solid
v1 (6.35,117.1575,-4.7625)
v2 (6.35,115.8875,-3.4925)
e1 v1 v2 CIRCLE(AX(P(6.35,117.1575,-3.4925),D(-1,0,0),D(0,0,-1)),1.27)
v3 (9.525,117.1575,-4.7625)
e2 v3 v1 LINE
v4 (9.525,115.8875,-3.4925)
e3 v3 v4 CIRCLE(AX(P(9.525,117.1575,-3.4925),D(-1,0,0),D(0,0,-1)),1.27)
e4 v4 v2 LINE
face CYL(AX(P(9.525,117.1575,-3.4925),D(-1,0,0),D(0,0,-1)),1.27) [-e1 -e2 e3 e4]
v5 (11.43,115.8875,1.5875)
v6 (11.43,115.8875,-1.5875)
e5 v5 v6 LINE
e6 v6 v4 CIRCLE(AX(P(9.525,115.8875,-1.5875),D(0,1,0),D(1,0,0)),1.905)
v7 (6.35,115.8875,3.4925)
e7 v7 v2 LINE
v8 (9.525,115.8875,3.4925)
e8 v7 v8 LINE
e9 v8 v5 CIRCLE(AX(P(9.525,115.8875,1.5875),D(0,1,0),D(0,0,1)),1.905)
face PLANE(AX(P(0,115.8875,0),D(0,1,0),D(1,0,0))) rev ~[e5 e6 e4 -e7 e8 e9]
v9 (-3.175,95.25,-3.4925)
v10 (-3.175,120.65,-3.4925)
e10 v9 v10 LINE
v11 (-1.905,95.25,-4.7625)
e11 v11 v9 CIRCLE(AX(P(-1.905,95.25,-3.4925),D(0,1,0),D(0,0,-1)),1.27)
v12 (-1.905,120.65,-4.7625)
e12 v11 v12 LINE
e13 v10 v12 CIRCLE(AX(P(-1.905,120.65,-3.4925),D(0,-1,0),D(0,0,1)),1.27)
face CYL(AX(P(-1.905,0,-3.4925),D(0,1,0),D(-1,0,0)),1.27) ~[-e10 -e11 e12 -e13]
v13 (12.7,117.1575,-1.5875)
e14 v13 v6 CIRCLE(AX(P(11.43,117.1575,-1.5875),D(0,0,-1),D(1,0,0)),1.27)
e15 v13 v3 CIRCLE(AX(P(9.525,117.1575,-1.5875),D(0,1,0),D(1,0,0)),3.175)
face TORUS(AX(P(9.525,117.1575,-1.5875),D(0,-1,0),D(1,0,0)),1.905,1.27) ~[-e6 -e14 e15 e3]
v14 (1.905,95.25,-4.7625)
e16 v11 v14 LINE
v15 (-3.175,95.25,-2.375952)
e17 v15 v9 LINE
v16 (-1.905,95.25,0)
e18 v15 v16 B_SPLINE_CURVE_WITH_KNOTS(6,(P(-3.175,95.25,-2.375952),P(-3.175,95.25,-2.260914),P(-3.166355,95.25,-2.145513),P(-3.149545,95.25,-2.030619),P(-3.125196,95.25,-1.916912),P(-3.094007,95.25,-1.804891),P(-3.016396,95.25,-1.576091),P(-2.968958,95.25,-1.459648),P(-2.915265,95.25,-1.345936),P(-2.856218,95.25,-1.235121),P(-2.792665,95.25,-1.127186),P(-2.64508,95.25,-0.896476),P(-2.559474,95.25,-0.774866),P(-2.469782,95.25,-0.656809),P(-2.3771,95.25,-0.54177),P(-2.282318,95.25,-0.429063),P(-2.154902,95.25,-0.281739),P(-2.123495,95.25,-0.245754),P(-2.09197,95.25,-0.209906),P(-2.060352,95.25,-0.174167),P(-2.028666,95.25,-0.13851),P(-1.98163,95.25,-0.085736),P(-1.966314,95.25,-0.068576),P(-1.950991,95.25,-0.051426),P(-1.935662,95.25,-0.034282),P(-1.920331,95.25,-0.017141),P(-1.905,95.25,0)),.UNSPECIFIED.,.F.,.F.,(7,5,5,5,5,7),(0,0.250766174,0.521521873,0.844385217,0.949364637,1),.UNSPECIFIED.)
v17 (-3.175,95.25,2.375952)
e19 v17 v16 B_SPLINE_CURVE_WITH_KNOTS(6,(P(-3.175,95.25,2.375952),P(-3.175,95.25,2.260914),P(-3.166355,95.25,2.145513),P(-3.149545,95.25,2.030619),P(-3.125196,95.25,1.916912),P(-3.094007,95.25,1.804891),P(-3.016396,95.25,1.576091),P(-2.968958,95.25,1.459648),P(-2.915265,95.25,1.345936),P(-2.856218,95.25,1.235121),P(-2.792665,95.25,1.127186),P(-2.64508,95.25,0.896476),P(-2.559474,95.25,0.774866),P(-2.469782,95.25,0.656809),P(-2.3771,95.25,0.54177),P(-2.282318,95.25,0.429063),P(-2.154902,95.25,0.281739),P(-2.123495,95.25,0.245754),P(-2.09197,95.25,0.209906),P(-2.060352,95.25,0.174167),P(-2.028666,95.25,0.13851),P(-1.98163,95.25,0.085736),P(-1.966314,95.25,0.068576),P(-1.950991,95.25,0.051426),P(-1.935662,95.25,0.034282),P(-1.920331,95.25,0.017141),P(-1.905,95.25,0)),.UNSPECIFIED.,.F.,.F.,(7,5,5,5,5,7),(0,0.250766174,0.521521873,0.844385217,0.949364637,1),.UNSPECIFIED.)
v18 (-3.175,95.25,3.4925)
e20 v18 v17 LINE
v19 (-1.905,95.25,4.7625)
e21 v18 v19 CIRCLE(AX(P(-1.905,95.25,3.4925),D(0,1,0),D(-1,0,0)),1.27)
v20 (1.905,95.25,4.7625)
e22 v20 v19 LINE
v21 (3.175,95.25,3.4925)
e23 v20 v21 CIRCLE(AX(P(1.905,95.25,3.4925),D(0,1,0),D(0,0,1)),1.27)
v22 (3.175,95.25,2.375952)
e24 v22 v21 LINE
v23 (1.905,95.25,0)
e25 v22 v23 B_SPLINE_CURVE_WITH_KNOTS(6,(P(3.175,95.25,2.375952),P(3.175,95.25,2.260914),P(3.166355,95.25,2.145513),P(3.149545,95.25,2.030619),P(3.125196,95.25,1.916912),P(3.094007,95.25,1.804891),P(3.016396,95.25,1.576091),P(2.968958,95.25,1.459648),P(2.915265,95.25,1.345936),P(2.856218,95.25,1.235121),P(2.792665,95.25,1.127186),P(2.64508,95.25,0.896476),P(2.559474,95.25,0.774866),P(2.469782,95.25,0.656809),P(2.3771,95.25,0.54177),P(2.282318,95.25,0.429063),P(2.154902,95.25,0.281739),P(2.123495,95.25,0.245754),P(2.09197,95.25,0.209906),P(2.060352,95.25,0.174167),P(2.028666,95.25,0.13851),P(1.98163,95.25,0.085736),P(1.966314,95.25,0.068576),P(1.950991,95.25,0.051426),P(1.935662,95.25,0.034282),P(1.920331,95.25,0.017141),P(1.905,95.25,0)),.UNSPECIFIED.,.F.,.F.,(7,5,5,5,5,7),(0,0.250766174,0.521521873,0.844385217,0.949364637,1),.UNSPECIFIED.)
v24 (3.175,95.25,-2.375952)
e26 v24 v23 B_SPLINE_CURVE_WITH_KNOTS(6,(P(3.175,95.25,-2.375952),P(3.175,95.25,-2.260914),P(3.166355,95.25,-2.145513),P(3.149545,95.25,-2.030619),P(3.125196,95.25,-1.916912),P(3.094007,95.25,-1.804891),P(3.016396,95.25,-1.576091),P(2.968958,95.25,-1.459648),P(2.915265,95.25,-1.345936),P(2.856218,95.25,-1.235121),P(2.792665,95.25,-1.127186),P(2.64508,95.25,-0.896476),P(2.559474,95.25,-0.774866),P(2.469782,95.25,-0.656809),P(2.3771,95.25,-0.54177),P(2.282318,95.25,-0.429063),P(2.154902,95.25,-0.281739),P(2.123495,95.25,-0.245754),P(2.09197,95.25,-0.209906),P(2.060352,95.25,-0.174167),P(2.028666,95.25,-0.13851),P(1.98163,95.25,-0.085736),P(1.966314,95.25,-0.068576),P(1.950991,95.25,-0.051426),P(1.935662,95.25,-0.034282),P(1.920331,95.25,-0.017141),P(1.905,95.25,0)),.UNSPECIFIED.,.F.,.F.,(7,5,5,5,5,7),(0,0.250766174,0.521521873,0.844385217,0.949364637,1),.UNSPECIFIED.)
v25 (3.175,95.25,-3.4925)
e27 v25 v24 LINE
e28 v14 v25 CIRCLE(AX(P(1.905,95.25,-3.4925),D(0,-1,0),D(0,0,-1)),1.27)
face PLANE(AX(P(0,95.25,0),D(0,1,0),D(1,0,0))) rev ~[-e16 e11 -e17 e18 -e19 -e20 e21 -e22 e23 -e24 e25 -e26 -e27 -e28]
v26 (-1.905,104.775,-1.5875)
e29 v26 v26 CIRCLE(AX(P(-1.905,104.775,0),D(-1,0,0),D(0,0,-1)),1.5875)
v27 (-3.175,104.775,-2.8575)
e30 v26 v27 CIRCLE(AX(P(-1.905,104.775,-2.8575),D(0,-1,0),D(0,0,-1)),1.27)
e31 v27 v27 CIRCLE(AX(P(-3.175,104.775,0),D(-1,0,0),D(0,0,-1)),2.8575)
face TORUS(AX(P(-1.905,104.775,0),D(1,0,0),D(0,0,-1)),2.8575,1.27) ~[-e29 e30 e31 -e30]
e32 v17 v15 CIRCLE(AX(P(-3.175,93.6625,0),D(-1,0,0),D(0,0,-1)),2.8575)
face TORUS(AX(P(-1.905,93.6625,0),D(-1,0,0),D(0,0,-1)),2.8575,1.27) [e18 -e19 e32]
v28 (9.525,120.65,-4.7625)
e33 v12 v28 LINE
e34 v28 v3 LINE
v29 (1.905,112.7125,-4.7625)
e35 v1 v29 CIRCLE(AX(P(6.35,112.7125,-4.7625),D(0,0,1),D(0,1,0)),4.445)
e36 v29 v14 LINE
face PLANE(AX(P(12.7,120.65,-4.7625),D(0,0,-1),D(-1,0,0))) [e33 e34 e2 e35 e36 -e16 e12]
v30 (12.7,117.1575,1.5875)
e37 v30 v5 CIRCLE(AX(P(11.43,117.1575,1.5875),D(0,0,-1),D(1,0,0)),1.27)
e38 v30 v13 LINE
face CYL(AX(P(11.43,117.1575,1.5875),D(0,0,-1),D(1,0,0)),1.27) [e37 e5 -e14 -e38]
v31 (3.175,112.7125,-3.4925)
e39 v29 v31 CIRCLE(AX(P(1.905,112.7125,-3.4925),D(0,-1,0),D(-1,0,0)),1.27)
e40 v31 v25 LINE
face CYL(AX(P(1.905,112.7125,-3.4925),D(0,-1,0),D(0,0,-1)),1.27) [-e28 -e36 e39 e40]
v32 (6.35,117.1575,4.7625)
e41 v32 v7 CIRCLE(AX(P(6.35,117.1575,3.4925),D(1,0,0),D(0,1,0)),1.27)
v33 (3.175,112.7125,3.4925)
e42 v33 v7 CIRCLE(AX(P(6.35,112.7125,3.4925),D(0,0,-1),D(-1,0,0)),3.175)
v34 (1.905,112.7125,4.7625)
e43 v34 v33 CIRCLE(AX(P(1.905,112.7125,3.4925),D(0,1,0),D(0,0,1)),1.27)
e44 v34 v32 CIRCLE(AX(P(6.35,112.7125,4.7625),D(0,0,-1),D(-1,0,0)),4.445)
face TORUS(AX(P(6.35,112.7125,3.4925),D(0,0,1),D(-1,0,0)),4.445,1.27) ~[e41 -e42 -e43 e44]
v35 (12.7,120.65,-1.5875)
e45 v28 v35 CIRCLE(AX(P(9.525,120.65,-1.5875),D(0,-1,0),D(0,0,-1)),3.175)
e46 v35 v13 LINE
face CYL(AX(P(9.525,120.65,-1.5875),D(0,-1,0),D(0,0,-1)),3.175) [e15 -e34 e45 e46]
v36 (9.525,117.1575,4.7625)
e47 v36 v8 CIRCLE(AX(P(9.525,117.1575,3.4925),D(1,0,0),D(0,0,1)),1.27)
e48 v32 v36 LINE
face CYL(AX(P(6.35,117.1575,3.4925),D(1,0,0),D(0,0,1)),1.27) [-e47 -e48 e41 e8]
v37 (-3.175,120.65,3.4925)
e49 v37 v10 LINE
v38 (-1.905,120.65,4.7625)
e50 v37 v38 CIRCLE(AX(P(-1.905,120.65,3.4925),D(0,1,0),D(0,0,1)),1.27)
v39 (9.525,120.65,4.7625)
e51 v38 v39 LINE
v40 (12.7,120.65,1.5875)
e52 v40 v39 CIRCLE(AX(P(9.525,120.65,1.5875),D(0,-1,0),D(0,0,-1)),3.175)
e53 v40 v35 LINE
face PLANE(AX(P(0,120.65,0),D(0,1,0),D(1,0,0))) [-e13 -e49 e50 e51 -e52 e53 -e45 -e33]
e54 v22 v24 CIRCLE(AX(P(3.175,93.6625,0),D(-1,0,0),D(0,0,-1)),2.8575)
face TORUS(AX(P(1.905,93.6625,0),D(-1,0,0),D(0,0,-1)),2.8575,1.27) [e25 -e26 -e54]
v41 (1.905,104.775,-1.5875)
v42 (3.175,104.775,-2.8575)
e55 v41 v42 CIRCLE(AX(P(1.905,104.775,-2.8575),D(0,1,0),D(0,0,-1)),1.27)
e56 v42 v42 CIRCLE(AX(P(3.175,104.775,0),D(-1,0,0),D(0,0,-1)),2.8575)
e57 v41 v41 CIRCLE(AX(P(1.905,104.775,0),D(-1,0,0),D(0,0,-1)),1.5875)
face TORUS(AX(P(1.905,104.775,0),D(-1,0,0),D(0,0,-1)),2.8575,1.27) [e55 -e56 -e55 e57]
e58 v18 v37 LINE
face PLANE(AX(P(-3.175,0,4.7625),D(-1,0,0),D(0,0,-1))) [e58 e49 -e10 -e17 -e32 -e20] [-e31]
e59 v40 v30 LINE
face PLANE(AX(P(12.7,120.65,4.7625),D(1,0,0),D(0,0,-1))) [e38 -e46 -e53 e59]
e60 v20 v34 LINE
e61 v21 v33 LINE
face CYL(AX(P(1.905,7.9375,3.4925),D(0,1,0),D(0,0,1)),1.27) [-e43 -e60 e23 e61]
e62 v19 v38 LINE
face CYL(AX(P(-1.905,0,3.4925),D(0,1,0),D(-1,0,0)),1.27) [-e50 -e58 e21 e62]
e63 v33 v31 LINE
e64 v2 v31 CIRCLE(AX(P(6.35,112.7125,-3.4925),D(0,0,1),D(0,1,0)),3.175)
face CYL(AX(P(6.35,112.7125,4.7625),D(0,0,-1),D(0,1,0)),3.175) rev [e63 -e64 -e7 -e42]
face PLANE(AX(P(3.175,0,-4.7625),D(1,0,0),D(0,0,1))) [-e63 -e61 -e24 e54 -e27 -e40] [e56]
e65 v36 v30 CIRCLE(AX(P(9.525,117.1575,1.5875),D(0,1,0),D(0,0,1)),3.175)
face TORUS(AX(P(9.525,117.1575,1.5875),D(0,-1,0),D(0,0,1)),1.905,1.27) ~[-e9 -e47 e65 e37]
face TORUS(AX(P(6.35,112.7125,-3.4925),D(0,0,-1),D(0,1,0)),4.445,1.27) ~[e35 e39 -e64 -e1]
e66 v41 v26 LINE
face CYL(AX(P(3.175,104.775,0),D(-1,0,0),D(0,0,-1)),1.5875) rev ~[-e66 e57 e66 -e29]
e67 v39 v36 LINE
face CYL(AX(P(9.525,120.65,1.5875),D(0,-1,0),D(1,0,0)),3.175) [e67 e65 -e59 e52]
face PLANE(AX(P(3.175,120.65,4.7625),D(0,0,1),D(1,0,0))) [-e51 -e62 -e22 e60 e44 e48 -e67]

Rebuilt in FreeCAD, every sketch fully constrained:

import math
import FreeCAD as App
import Part
import Sketcher
Q = App.Units.Quantity


def edges_at(feature, points):
    """Names of the edges that pass closest to the given points."""
    edges = feature.Shape.Edges
    near = lambda p: min(range(len(edges)), key=lambda i: edges[i].distToShape(Part.Vertex(*p))[0])
    return sorted({f"Edge{near(p) + 1}" for p in points})


def add_polygon(sketch, points):
    """Adds a closed chain of lines whose ends are joined by coincident constraints."""
    first, n = sketch.GeometryCount, len(points)
    for a, b in zip(points, points[1:] + points[:1]):
        sketch.addGeometry(Part.LineSegment(App.Vector(*a, 0), App.Vector(*b, 0)), False)
    for i in range(n):
        sketch.addConstraint(Sketcher.Constraint("Coincident", first + i, 2, first + (i + 1) % n, 1))

doc = App.newDocument("Part")
params = doc.addObject("Spreadsheet::Sheet", "Params")
for row, (alias, value) in enumerate([
    ("sketch1_width", "0.25 in"),
    ("sketch1_height", "0.375 in"),
    ("pad1_length", "4.75 in"),
    ("sketch2_width", "0.375 in"),
    ("pad2_length", "0.1875 in"),
    ("sketch3_width", "0.375 in"),
    ("pad3_length", "0.1875 in"),
    ("fillet_radius", "0.125 in"),
    ("fillet2_radius", "0.125 in"),
    ("fillet3_radius", "0.05 in"),
    ("sketch4_diameter", "0.125 in"),
    ("hole_diameter", "0.125 in"),
    ("hole_depth", "8 in"),
    ("fillet4_radius", "0.05 in"),
    ("fillet5_radius", "0.05 in"),
    ("fillet6_radius", "0.05 in"),
    ("sketch5_radius", "0.05 in"),
    ("sketch5_radius2", "0.125 in"),
    ("sketch5_width", "0.45 in"),
], start=1):
    params.set(f"A{row}", alias)
    params.set(f"B{row}", "=" + value)
    params.setAlias(f"B{row}", alias)

body = doc.addObject("PartDesign::Body", "Body")

# Sketch on XZ plane
sketch1 = body.newObject("Sketcher::SketchObject", "Sketch")
sketch1.AttachmentSupport = (doc.getObject("XZ_Plane"), [""])
sketch1.MapMode = "FlatFace"
add_polygon(sketch1, [(3, -5), (-3, -5), (-3, 5), (3, 5)])  # lines 0-3
sketch1.addConstraint([
    Sketcher.Constraint("Horizontal", 0),
    Sketcher.Constraint("Vertical", 1),
    Sketcher.Constraint("Horizontal", 2),
    Sketcher.Constraint("Vertical", 3),
    Sketcher.Constraint("Symmetric", 0, 2, 2, 2, -1, 1),
    Sketcher.Constraint("DistanceX", 0, 2, 0, 1, Q("0.25 in")),
    Sketcher.Constraint("DistanceY", 1, 1, 1, 2, Q("0.375 in")),
])
sketch1.setExpression("Constraints[9]", "Params.sketch1_width")
sketch1.setExpression("Constraints[10]", "Params.sketch1_height")
pad1 = body.newObject("PartDesign::Pad", "Pad")
pad1.Profile = sketch1
pad1.setExpression("Length", "Params.pad1_length")
pad1.Reversed = True

# Sketch on XZ plane
sketch2 = body.newObject("Sketcher::SketchObject", "Sketch001")
sketch2.AttachmentSupport = (doc.getObject("XZ_Plane"), [""])
sketch2.MapMode = "FlatFace"
add_polygon(sketch2, [(13, 5), (3, 5), (3, -5), (13, -5)])  # lines 0-3
sketch2.addConstraint([
    Sketcher.Constraint("Horizontal", 0),
    Sketcher.Constraint("Vertical", 1),
    Sketcher.Constraint("Horizontal", 2),
    Sketcher.Constraint("Vertical", 3),
    Sketcher.Constraint("Equal", 2, 1),
    Sketcher.Constraint("DistanceX", 0, 2, 0, 1, Q("0.375 in")),
    Sketcher.Constraint("DistanceX", -1, 1, 2, 2, Q("0.5 in")),
    Sketcher.Constraint("DistanceY", -1, 1, 0, 2, Q("0.1875 in")),
])
sketch2.setExpression("Constraints[9]", "Params.sketch2_width")
pad2 = body.newObject("PartDesign::Pad", "Pad001")
pad2.Profile = sketch2
pad2.setExpression("Length", "Params.pad2_length")
pad2.Reversed = True

# Sketch on XZ plane
sketch3 = body.newObject("Sketcher::SketchObject", "Sketch002")
sketch3.AttachmentSupport = (doc.getObject("XZ_Plane"), [""])
sketch3.MapMode = "FlatFace"
sketch3.AttachmentOffset = App.Placement(App.Vector(0, 0, -4.75 * 25.4), App.Rotation())
add_polygon(sketch3, [(3, -5), (3, 5), (13, 5), (13, -5)])  # lines 0-3
sketch3.addConstraint([
    Sketcher.Constraint("Vertical", 0),
    Sketcher.Constraint("Horizontal", 1),
    Sketcher.Constraint("Vertical", 2),
    Sketcher.Constraint("Horizontal", 3),
    Sketcher.Constraint("Equal", 3, 0),
    Sketcher.Constraint("DistanceX", -1, 1, 1, 2, Q("0.5 in")),
    Sketcher.Constraint("DistanceX", 1, 1, 1, 2, Q("0.375 in")),
    Sketcher.Constraint("DistanceY", -1, 1, 0, 2, Q("0.1875 in")),
])
sketch3.setExpression("Constraints[10]", "Params.sketch3_width")
pad3 = body.newObject("PartDesign::Pad", "Pad002")
pad3.Profile = sketch3
pad3.setExpression("Length", "Params.pad3_length")
doc.recompute()

fillet = body.newObject("PartDesign::Fillet", "Fillet")
fillet.Base = (pad3, edges_at(pad3, [
    (12.7, 2.381, -4.763),
    (12.7, 2.381, 4.763),
    (12.7, 118.269, -4.763),
    (12.7, 118.269, 4.763),
]))
fillet.setExpression("Radius", "Params.fillet_radius")
doc.recompute()

fillet2 = body.newObject("PartDesign::Fillet", "Fillet001")
fillet2.Base = (fillet, edges_at(fillet, [(3.175, 4.763, 0), (3.175, 115.888, 0)]))
fillet2.setExpression("Radius", "Params.fillet2_radius")
doc.recompute()

fillet3 = body.newObject("PartDesign::Fillet", "Fillet002")
fillet3.Base = (fillet2, edges_at(fillet2, [
    (7.938, 115.888, -4.763),
    (11.77, 115.888, -3.833),
    (12.7, 115.888, 0),
    (11.77, 115.888, 3.833),
    (7.938, 115.888, 4.763),
    (3.175, 60.325, 4.763),
    (7.938, 4.763, 4.763),
    (11.77, 4.763, 3.833),
    (12.7, 4.763, 0),
    (11.77, 4.763, -3.833),
    (7.938, 4.763, -4.763),
    (3.175, 60.325, -4.763),
]))
fillet3.setExpression("Radius", "Params.fillet3_radius")

# Sketch on YZ plane
sketch4 = body.newObject("Sketcher::SketchObject", "Sketch003")
sketch4.AttachmentSupport = (doc.getObject("YZ_Plane"), [""])
sketch4.MapMode = "FlatFace"
sketch4.AttachmentOffset = App.Placement(App.Vector(0, 0, 0.125 * 25.4), App.Rotation())
sketch4.addGeometry([
    Part.Circle(App.Vector(15.9, 0, 0), App.Vector(0, 0, 1), 1.6),  # 0
    Part.Circle(App.Vector(38.1, 0, 0), App.Vector(0, 0, 1), 1.6),  # 1
    Part.Circle(App.Vector(60.3, 0, 0), App.Vector(0, 0, 1), 1.6),  # 2
    Part.Circle(App.Vector(82.5, 0, 0), App.Vector(0, 0, 1), 1.6),  # 3
    Part.Circle(App.Vector(104.8, 0, 0), App.Vector(0, 0, 1), 1.6),  # 4
    Part.Circle(App.Vector(27, 0, 0), App.Vector(0, 0, 1), 1.6),  # 5
    Part.Circle(App.Vector(49.2, 0, 0), App.Vector(0, 0, 1), 1.6),  # 6
    Part.Circle(App.Vector(93.7, 0, 0), App.Vector(0, 0, 1), 1.6),  # 7
    Part.Circle(App.Vector(71.4, 0, 0), App.Vector(0, 0, 1), 1.6),  # 8
], False)
sketch4.addConstraint([
    Sketcher.Constraint("Equal", 0, 1),
    Sketcher.Constraint("Equal", 1, 2),
    Sketcher.Constraint("Equal", 2, 3),
    Sketcher.Constraint("Equal", 3, 4),
    Sketcher.Constraint("Equal", 4, 5),
    Sketcher.Constraint("Equal", 5, 6),
    Sketcher.Constraint("Equal", 6, 7),
    Sketcher.Constraint("Equal", 7, 8),
    Sketcher.Constraint("PointOnObject", 0, 3, -1),
    Sketcher.Constraint("PointOnObject", 1, 3, -1),
    Sketcher.Constraint("PointOnObject", 2, 3, -1),
    Sketcher.Constraint("PointOnObject", 3, 3, -1),
    Sketcher.Constraint("PointOnObject", 4, 3, -1),
    Sketcher.Constraint("PointOnObject", 5, 3, -1),
    Sketcher.Constraint("PointOnObject", 6, 3, -1),
    Sketcher.Constraint("PointOnObject", 7, 3, -1),
    Sketcher.Constraint("PointOnObject", 8, 3, -1),
    Sketcher.Constraint("Diameter", 0, Q("0.125 in")),
    Sketcher.Constraint("DistanceX", -1, 1, 1, 3, Q("1.5 in")),
    Sketcher.Constraint("DistanceX", 0, 3, 4, 3, Q("3.5 in")),
    Sketcher.Constraint("DistanceX", -1, 1, 3, 3, Q("3.25 in")),
    Sketcher.Constraint("DistanceX", 0, 3, 2, 3, Q("1.75 in")),
    Sketcher.Constraint("DistanceX", 6, 3, 7, 3, Q("1.75 in")),
    Sketcher.Constraint("DistanceX", -1, 1, 0, 3, Q("0.625 in")),
    Sketcher.Constraint("DistanceX", -1, 1, 5, 3, Q("1.0625 in")),
    Sketcher.Constraint("DistanceX", -1, 1, 6, 3, Q("1.9375 in")),
    Sketcher.Constraint("DistanceX", -1, 1, 8, 3, Q("2.8125 in")),
])
sketch4.setExpression("Constraints[17]", "Params.sketch4_diameter")
doc.recompute()
hole = body.newObject("PartDesign::Hole", "Hole")
hole.Profile = sketch4
hole.ThreadType = "None"
hole.setExpression("Diameter", "Params.hole_diameter")
hole.DepthType = "Dimension"
hole.setExpression("Depth", "Params.hole_depth")
hole.DrillPoint = "Angled"
hole.DrillPointAngle = 118
doc.recompute()

fillet4 = body.newObject("PartDesign::Fillet", "Fillet003")
fillet4.Base = (hole, edges_at(hole, [
    (3.175, 104.775, 1.587),
    (3.175, 93.662, 1.587),
    (3.175, 82.55, 1.587),
    (3.175, 71.438, 1.587),
    (3.175, 60.325, 1.587),
    (3.175, 49.212, 1.587),
    (3.175, 38.1, 1.587),
    (3.175, 26.988, 1.587),
    (3.175, 15.875, 1.587),
]))
fillet4.setExpression("Radius", "Params.fillet4_radius")
doc.recompute()

fillet5 = body.newObject("PartDesign::Fillet", "Fillet004")
fillet5.Base = (fillet4, edges_at(fillet4, [
    (-3.175, 104.775, 1.587),
    (-3.175, 93.662, 1.587),
    (-3.175, 82.55, 1.587),
    (-3.175, 71.438, 1.587),
    (-3.175, 60.325, 1.587),
    (-3.175, 49.212, 1.587),
    (-3.175, 38.1, 1.587),
    (-3.175, 26.988, 1.587),
    (-3.175, 15.875, 1.587),
]))
fillet5.setExpression("Radius", "Params.fillet5_radius")
doc.recompute()

fillet6 = body.newObject("PartDesign::Fillet", "Fillet005")
fillet6.Base = (fillet5, edges_at(fillet5, [(-3.175, 60.325, -4.763), (-3.175, 60.325, 4.763)]))
fillet6.setExpression("Radius", "Params.fillet6_radius")

# Sketch on XZ plane
sketch5 = body.newObject("Sketcher::SketchObject", "Sketch004")
sketch5.AttachmentSupport = (doc.getObject("XZ_Plane"), [""])
sketch5.MapMode = "FlatFace"
sketch5.AttachmentOffset = App.Placement(App.Vector(0, 0, -3.75 * 25.4), App.Rotation())
sketch5.addGeometry([
    Part.LineSegment(App.Vector(9.5, -4.8, 0), App.Vector(-1.9, -4.8, 0)),  # 0
    Part.ArcOfCircle(Part.Circle(App.Vector(-1.9, -3.5, 0), App.Vector(0, 0, 1), 1.3), math.radians(180), math.radians(270)),  # 1
    Part.LineSegment(App.Vector(-3.2, -3.5, 0), App.Vector(-3.2, 3.5, 0)),  # 2
    Part.ArcOfCircle(Part.Circle(App.Vector(-1.9, 3.5, 0), App.Vector(0, 0, 1), 1.3), math.radians(90), math.radians(180)),  # 3
    Part.LineSegment(App.Vector(-1.9, 4.8, 0), App.Vector(9.5, 4.8, 0)),  # 4
    Part.ArcOfCircle(Part.Circle(App.Vector(9.5, 1.6, 0), App.Vector(0, 0, 1), 3.2), math.radians(0), math.radians(90)),  # 5
    Part.LineSegment(App.Vector(12.7, 1.6, 0), App.Vector(12.7, -1.6, 0)),  # 6
    Part.ArcOfCircle(Part.Circle(App.Vector(9.5, -1.6, 0), App.Vector(0, 0, 1), 3.2), math.radians(-90), math.radians(0)),  # 7
], False)
sketch5.addConstraint([
    Sketcher.Constraint("Tangent", 0, 2, 1, 2),
    Sketcher.Constraint("Tangent", 1, 1, 2, 1),
    Sketcher.Constraint("Tangent", 2, 2, 3, 2),
    Sketcher.Constraint("Tangent", 3, 1, 4, 1),
    Sketcher.Constraint("Tangent", 4, 2, 5, 2),
    Sketcher.Constraint("Tangent", 5, 1, 6, 1),
    Sketcher.Constraint("Tangent", 6, 2, 7, 2),
    Sketcher.Constraint("Tangent", 7, 1, 0, 1),
    Sketcher.Constraint("Horizontal", 0),
    Sketcher.Constraint("Vertical", 2),
    Sketcher.Constraint("Horizontal", 4),
    Sketcher.Constraint("Vertical", 6),
    Sketcher.Constraint("Equal", 1, 3),
    Sketcher.Constraint("Equal", 5, 7),
    Sketcher.Constraint("Radius", 1, Q("0.05 in")),
    Sketcher.Constraint("Radius", 5, Q("0.125 in")),
    Sketcher.Constraint("DistanceX", 0, 2, 0, 1, Q("0.45 in")),
    Sketcher.Constraint("DistanceX", -1, 1, 5, 1, Q("0.5 in")),
    Sketcher.Constraint("DistanceY", 1, 3, 5, 3, Q("0.2 in")),
    Sketcher.Constraint("DistanceY", -1, 1, 5, 3, Q("0.0625 in")),
])
sketch5.setExpression("Constraints[14]", "Params.sketch5_radius")
sketch5.setExpression("Constraints[15]", "Params.sketch5_radius2")
sketch5.setExpression("Constraints[16]", "Params.sketch5_width")
pocket1 = body.newObject("PartDesign::Pocket", "Pocket")
pocket1.Profile = sketch5
pocket1.Type = "ThroughAll"
pocket1.Reversed = True

doc.recompute()
